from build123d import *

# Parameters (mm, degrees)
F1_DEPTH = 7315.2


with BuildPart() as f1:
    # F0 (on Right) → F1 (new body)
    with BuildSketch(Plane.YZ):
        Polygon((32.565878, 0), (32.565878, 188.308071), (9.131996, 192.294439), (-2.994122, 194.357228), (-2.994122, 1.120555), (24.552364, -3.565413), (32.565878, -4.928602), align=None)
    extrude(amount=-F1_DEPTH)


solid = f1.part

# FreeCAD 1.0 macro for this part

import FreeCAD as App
import Part
import Sketcher
from FreeCAD import Vector
Q = App.Units.Quantity


def add_polygon(sketch, points):
    """Adds a closed chain of lines whose ends are joined by coincident constraints."""
    first, n = sketch.GeometryCount, len(points)
    for a, b in zip(points, points[1:] + points[:1]):
        sketch.addGeometry(Part.LineSegment(App.Vector(*a, 0), App.Vector(*b, 0)), False)
    for i in range(n):
        sketch.addConstraint(Sketcher.Constraint("Coincident", first + i, 2, first + (i + 1) % n, 1))

doc = App.newDocument("Part")
body = doc.addObject("PartDesign::Body", "Body")

sketch1 = doc.addObject("Sketcher::SketchObject", "Sketch")
body.addObject(sketch1)
sketch1.AttachmentSupport = (doc.YZ_Plane, [""])
sketch1.MapMode = "FlatFace"
add_polygon(sketch1, [(33, 188), (9, 192), (-3, 194), (-3, 1), (25, -4), (33, -5)])
sketch1.addConstraint([
    Sketcher.Constraint("Vertical", 2),
    Sketcher.Constraint("Vertical", 5),
    Sketcher.Constraint("Parallel", 0, 1),
    Sketcher.Constraint("Parallel", 1, 3),
    Sketcher.Constraint("Parallel", 3, 4),
    Sketcher.Constraint("DistanceX", 2, 2, 4, 2, Q("1.4 in")),
    Sketcher.Constraint("DistanceY", 4, 2, -1, 1, Q("4.928602 mm")),
    Sketcher.Constraint("Distance", 1, Q("12.300319 mm")),
    Sketcher.Constraint("Distance", 3, Q("27.942212 mm")),
    Sketcher.Constraint("DistanceY", 2, 2, 2, 1, Q("193.236673 mm")),
    Sketcher.Constraint("DistanceY", -1, 1, 0, 2, Q("192.294439 mm")),
    Sketcher.Constraint("DistanceX", 1, 2, -1, 1, Q("2.994122 mm")),
])
pad1 = doc.addObject("PartDesign::Pad", "Pad")
body.addObject(pad1)
pad1.Profile = sketch1
pad1.Length = Q("288 in")
pad1.Reversed = True

doc.recompute()
